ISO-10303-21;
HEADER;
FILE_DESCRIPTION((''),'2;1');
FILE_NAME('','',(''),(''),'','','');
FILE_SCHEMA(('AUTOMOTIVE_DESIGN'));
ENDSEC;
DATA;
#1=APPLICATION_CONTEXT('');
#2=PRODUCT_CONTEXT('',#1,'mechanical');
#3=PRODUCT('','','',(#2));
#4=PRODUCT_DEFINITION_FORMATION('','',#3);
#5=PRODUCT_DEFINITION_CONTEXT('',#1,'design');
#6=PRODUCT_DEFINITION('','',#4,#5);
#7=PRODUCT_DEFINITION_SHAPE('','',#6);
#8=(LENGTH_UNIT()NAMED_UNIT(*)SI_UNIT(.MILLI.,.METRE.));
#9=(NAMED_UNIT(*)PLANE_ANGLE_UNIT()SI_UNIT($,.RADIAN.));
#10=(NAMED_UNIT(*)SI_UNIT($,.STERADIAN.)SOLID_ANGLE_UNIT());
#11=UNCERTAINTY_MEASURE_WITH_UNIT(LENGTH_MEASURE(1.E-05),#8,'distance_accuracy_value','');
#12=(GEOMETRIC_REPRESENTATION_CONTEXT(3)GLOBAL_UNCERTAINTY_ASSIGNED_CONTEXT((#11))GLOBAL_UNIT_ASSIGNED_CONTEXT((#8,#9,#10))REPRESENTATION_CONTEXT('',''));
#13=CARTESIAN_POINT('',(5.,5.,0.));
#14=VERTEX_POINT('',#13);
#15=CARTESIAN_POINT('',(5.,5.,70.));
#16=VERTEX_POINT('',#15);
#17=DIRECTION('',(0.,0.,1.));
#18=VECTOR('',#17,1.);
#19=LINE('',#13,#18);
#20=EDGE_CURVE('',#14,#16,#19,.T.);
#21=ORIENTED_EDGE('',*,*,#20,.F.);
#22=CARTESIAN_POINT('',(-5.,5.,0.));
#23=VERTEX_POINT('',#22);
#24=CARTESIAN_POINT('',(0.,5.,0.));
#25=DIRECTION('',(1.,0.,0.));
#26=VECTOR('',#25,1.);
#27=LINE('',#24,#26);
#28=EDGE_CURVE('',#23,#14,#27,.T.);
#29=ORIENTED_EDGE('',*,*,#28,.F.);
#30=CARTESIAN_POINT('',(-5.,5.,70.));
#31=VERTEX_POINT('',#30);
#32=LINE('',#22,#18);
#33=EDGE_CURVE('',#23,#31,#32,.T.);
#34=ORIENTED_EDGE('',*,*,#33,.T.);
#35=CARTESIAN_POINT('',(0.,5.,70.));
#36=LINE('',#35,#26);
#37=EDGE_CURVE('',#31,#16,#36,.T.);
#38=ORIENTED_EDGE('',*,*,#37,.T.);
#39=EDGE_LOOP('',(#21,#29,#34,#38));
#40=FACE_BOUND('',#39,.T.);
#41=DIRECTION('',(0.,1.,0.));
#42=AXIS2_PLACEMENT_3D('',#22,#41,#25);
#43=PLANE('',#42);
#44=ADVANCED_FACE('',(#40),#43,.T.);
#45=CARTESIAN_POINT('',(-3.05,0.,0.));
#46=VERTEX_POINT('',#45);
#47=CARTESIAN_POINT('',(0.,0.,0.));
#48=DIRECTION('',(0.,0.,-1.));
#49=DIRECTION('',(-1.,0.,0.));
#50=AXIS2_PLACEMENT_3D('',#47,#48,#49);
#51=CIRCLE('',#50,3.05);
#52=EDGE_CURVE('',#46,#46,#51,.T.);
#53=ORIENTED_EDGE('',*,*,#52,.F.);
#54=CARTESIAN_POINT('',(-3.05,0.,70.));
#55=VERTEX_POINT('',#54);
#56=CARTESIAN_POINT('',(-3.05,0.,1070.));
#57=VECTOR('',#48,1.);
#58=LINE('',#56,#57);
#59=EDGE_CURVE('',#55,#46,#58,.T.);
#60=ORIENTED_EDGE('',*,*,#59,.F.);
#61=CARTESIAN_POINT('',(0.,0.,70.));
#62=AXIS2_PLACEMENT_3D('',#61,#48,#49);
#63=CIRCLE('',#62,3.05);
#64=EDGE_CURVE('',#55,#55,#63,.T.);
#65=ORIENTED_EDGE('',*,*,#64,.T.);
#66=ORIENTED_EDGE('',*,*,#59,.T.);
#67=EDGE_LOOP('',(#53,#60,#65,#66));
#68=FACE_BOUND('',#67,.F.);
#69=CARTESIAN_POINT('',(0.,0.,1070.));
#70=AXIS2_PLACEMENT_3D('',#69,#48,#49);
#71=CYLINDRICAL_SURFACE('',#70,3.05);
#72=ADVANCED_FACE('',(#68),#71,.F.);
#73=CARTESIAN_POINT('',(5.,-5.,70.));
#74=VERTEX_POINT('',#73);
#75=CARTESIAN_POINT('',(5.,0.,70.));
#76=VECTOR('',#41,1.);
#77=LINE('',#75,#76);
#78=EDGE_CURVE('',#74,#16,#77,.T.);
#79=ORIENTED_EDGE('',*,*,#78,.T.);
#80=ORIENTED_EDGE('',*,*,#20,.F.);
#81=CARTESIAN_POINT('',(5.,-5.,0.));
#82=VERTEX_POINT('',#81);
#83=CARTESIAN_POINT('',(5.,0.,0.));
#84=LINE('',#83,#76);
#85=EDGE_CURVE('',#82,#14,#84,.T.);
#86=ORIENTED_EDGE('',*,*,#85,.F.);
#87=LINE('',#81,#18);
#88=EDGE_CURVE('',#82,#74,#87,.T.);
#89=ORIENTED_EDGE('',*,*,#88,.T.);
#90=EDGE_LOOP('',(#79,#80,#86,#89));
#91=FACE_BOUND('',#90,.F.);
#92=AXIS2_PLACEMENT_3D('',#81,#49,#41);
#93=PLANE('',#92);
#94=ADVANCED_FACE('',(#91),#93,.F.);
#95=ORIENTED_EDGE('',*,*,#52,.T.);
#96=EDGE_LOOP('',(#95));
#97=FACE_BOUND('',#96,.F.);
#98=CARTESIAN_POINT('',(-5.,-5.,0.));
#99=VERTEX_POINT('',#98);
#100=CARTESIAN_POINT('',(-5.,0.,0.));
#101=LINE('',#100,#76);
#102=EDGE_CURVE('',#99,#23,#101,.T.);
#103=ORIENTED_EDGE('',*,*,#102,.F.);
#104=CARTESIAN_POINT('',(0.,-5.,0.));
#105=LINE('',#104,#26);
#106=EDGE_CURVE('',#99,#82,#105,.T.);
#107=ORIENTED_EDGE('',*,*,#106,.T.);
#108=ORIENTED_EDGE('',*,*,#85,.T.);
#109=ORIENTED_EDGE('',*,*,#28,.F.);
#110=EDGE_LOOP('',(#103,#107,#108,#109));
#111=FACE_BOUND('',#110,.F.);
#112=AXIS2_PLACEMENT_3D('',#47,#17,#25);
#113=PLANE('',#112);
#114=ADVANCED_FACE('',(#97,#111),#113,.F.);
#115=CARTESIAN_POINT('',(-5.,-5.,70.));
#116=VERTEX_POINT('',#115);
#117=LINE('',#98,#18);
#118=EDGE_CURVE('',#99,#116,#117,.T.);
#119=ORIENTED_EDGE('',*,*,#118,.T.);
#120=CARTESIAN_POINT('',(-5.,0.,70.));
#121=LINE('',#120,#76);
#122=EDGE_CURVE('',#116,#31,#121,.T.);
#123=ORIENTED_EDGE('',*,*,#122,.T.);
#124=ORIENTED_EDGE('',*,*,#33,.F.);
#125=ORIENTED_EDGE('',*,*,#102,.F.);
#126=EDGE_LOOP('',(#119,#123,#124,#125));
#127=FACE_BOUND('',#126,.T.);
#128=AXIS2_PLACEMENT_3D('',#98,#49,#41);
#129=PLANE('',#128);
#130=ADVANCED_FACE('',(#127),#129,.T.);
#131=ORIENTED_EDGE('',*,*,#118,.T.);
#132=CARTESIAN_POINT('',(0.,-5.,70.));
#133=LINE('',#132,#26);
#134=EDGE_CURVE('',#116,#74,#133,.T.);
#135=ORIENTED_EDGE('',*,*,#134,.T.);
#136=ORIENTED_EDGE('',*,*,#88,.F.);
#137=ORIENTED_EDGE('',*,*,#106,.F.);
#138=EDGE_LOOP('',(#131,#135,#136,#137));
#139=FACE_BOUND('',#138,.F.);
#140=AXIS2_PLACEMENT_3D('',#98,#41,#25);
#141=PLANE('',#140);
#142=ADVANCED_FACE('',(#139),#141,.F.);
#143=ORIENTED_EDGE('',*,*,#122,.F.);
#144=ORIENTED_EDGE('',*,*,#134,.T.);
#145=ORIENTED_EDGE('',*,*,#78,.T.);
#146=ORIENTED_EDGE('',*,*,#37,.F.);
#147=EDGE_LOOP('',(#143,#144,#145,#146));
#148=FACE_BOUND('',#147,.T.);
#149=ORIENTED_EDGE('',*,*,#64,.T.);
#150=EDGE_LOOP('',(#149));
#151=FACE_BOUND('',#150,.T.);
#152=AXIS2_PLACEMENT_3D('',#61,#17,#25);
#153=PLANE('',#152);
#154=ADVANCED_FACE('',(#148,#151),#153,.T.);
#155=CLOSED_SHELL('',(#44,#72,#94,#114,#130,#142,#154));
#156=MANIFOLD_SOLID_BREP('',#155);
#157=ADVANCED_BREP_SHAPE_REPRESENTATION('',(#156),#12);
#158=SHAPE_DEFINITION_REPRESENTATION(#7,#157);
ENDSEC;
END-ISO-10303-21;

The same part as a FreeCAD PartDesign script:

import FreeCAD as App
import Part
import Sketcher

doc = App.newDocument("Part")
body = doc.addObject("PartDesign::Body", "Body")

# Sketch on XY plane
sketch1 = body.newObject("Sketcher::SketchObject", "Sketch")
sketch1.AttachmentSupport = (doc.getObject("XY_Plane"), [""])
sketch1.MapMode = "FlatFace"
sketch1.addGeometry(Part.LineSegment(App.Vector(-5, 5, 0), App.Vector(-5, -5, 0)), False)
sketch1.addGeometry(Part.LineSegment(App.Vector(-5, -5, 0), App.Vector(5, -5, 0)), False)
sketch1.addGeometry(Part.LineSegment(App.Vector(5, -5, 0), App.Vector(5, 5, 0)), False)
sketch1.addGeometry(Part.LineSegment(App.Vector(5, 5, 0), App.Vector(-5, 5, 0)), False)
sketch1.addConstraint(Sketcher.Constraint("Coincident", 0, 2, 1, 1))
sketch1.addConstraint(Sketcher.Constraint("Coincident", 1, 2, 2, 1))
sketch1.addConstraint(Sketcher.Constraint("Coincident", 2, 2, 3, 1))
sketch1.addConstraint(Sketcher.Constraint("Coincident", 3, 2, 0, 1))
sketch1.addConstraint(Sketcher.Constraint("Vertical", 0))
sketch1.addConstraint(Sketcher.Constraint("Horizontal", 1))
sketch1.addConstraint(Sketcher.Constraint("Vertical", 2))
sketch1.addConstraint(Sketcher.Constraint("Horizontal", 3))
sketch1.addConstraint(Sketcher.Constraint("Symmetric", 0, 2, 2, 2, -1, 1))
sketch1.addConstraint(Sketcher.Constraint("Equal", 3, 0))
sketch1.addConstraint(Sketcher.Constraint("DistanceX", 1, 1, 1, 2, 10.0))
pad1 = body.newObject("PartDesign::Pad", "Pad")
pad1.Profile = sketch1
pad1.Length = 70

# Sketch on XY plane
sketch2 = body.newObject("Sketcher::SketchObject", "Sketch001")
sketch2.AttachmentSupport = (doc.getObject("XY_Plane"), [""])
sketch2.MapMode = "FlatFace"
sketch2.AttachmentOffset = App.Placement(App.Vector(0, 0, 70), App.Rotation())
sketch2.addGeometry(Part.Circle(App.Vector(0, 0, 0), App.Vector(0, 0, 1), 3.05), False)
sketch2.addConstraint(Sketcher.Constraint("Coincident", 0, 3, -1, 1))
sketch2.addConstraint(Sketcher.Constraint("Diameter", 0, 6.1))
doc.recompute()
hole = body.newObject("PartDesign::Hole", "Hole")
hole.Profile = sketch2
hole.ThreadType = "None"
hole.Diameter = 6.1
hole.DepthType = "Dimension"
hole.Depth = 1000
hole.DrillPoint = "Flat"

doc.recompute()
